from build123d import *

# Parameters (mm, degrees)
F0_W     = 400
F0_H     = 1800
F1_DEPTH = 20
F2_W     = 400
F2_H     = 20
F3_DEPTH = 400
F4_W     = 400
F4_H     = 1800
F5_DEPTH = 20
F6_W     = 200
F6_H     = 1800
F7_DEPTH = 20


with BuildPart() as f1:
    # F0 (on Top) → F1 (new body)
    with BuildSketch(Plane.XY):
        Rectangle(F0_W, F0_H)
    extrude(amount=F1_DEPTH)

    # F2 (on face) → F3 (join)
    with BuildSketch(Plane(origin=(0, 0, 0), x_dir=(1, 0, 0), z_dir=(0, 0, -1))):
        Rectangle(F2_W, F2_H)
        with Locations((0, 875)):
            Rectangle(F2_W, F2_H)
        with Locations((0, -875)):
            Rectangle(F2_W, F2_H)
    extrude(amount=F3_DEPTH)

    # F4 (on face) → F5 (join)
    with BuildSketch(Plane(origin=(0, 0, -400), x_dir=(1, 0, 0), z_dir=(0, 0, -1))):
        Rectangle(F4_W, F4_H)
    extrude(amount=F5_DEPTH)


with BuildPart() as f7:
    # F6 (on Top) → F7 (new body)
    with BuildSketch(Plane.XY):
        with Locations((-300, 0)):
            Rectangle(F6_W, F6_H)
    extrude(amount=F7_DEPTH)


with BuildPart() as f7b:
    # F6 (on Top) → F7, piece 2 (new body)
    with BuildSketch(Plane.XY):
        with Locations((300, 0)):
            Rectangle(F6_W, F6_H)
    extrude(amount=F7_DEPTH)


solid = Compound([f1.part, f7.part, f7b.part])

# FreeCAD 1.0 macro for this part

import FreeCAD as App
import Part
import Sketcher
from FreeCAD import Vector
Q = App.Units.Quantity


def add_polygon(sketch, points):
    """Adds a closed chain of lines whose ends are joined by coincident constraints."""
    first, n = sketch.GeometryCount, len(points)
    for a, b in zip(points, points[1:] + points[:1]):
        sketch.addGeometry(Part.LineSegment(App.Vector(*a, 0), App.Vector(*b, 0)), False)
    for i in range(n):
        sketch.addConstraint(Sketcher.Constraint("Coincident", first + i, 2, first + (i + 1) % n, 1))

doc = App.newDocument("Part")
body = doc.addObject("PartDesign::Body", "Body")

sketch1 = doc.addObject("Sketcher::SketchObject", "Sketch")
body.addObject(sketch1)
sketch1.AttachmentSupport = (doc.XY_Plane, [""])
sketch1.MapMode = "FlatFace"
add_polygon(sketch1, [(-200, 900), (-200, -900), (200, -900), (200, 900)])
sketch1.addConstraint([
    Sketcher.Constraint("Vertical", 0),
    Sketcher.Constraint("Horizontal", 1),
    Sketcher.Constraint("Vertical", 2),
    Sketcher.Constraint("Horizontal", 3),
    Sketcher.Constraint("Symmetric", 0, 2, 2, 2, -1, 1),
    Sketcher.Constraint("DistanceX", 1, 1, 1, 2, Q("400 mm")),
    Sketcher.Constraint("DistanceY", 0, 2, 0, 1, Q("1800 mm")),
])
pad1 = doc.addObject("PartDesign::Pad", "Pad")
body.addObject(pad1)
pad1.Profile = sketch1
pad1.Length = 20

sketch2 = doc.addObject("Sketcher::SketchObject", "Sketch001")
body.addObject(sketch2)
sketch2.AttachmentSupport = (doc.XY_Plane, [""])
sketch2.MapMode = "FlatFace"
add_polygon(sketch2, [(-200, -10), (-200, 10), (200, 10), (200, -10)])
add_polygon(sketch2, [(-200, -885), (-200, -865), (200, -865), (200, -885)])
add_polygon(sketch2, [(-200, 865), (-200, 885), (200, 885), (200, 865)])
sketch2.addConstraint([
    Sketcher.Constraint("Vertical", 0),
    Sketcher.Constraint("Horizontal", 1),
    Sketcher.Constraint("Vertical", 2),
    Sketcher.Constraint("Horizontal", 3),
    Sketcher.Constraint("Vertical", 4),
    Sketcher.Constraint("Horizontal", 5),
    Sketcher.Constraint("Vertical", 6),
    Sketcher.Constraint("Horizontal", 7),
    Sketcher.Constraint("Vertical", 8),
    Sketcher.Constraint("Horizontal", 9),
    Sketcher.Constraint("Vertical", 10),
    Sketcher.Constraint("Horizontal", 11),
    Sketcher.Constraint("Symmetric", 0, 2, 2, 2, -1, 1),
    Sketcher.Constraint("Symmetric", 6, 2, 8, 2, -1, 1),
    Sketcher.Constraint("Symmetric", 4, 2, 10, 2, -1, 1),
    Sketcher.Constraint("Vertical", 3, 2, 4, 2),
    Sketcher.Constraint("Vertical", 2, 2, 5, 2),
    Sketcher.Constraint("Equal", 2, 4),
    Sketcher.Constraint("DistanceX", 1, 1, 1, 2, Q("400 mm")),
    Sketcher.Constraint("DistanceY", 0, 1, 0, 2, Q("20 mm")),
    Sketcher.Constraint("DistanceY", 4, 2, -1, 1, Q("865 mm")),
])
pad2 = doc.addObject("PartDesign::Pad", "Pad001")
body.addObject(pad2)
pad2.Profile = sketch2
pad2.Length = 400
pad2.Reversed = True

sketch3 = doc.addObject("Sketcher::SketchObject", "Sketch002")
body.addObject(sketch3)
sketch3.AttachmentSupport = (doc.XY_Plane, [""])
sketch3.MapMode = "FlatFace"
sketch3.AttachmentOffset = App.Placement(Vector(0, 0, -400), App.Rotation())
add_polygon(sketch3, [(-200, -900), (-200, 900), (200, 900), (200, -900)])
sketch3.addConstraint([
    Sketcher.Constraint("Vertical", 0),
    Sketcher.Constraint("Horizontal", 1),
    Sketcher.Constraint("Vertical", 2),
    Sketcher.Constraint("Horizontal", 3),
    Sketcher.Constraint("Symmetric", 0, 2, 2, 2, -1, 1),
    Sketcher.Constraint("DistanceX", 1, 1, 1, 2, Q("400 mm")),
    Sketcher.Constraint("DistanceY", 0, 1, 0, 2, Q("1800 mm")),
])
pad3 = doc.addObject("PartDesign::Pad", "Pad002")
body.addObject(pad3)
pad3.Profile = sketch3
pad3.Length = 20
pad3.Reversed = True
body2 = doc.addObject("PartDesign::Body", "Body001")

sketch4 = doc.addObject("Sketcher::SketchObject", "Sketch003")
body2.addObject(sketch4)
sketch4.AttachmentSupport = (doc.getObject("XY_Plane001"), [""])
sketch4.MapMode = "FlatFace"
add_polygon(sketch4, [(-400, 900), (-400, -900), (-200, -900), (-200, 900)])
sketch4.addConstraint([
    Sketcher.Constraint("Vertical", 0),
    Sketcher.Constraint("Horizontal", 1),
    Sketcher.Constraint("Vertical", 2),
    Sketcher.Constraint("Horizontal", 3),
    Sketcher.Constraint("DistanceX", 1, 1, 1, 2, Q("200 mm")),
    Sketcher.Constraint("DistanceY", 0, 2, 0, 1, Q("1800 mm")),
    Sketcher.Constraint("DistanceX", 0, 2, -1, 1, Q("400 mm")),
    Sketcher.Constraint("DistanceY", 0, 2, -1, 1, Q("900 mm")),
])
pad4 = doc.addObject("PartDesign::Pad", "Pad003")
body2.addObject(pad4)
pad4.Profile = sketch4
pad4.Length = 20
body3 = doc.addObject("PartDesign::Body", "Body002")

sketch5 = doc.addObject("Sketcher::SketchObject", "Sketch004")
body3.addObject(sketch5)
sketch5.AttachmentSupport = (doc.getObject("XY_Plane002"), [""])
sketch5.MapMode = "FlatFace"
add_polygon(sketch5, [(200, 900), (200, -900), (400, -900), (400, 900)])
sketch5.addConstraint([
    Sketcher.Constraint("Vertical", 0),
    Sketcher.Constraint("Horizontal", 1),
    Sketcher.Constraint("Vertical", 2),
    Sketcher.Constraint("Horizontal", 3),
    Sketcher.Constraint("DistanceX", 1, 1, 1, 2, Q("200 mm")),
    Sketcher.Constraint("DistanceY", 0, 2, 0, 1, Q("1800 mm")),
    Sketcher.Constraint("DistanceX", -1, 1, 0, 2, Q("200 mm")),
    Sketcher.Constraint("DistanceY", 0, 2, -1, 1, Q("900 mm")),
])
pad5 = doc.addObject("PartDesign::Pad", "Pad004")
body3.addObject(pad5)
pad5.Profile = sketch5
pad5.Length = 20

doc.recompute()
